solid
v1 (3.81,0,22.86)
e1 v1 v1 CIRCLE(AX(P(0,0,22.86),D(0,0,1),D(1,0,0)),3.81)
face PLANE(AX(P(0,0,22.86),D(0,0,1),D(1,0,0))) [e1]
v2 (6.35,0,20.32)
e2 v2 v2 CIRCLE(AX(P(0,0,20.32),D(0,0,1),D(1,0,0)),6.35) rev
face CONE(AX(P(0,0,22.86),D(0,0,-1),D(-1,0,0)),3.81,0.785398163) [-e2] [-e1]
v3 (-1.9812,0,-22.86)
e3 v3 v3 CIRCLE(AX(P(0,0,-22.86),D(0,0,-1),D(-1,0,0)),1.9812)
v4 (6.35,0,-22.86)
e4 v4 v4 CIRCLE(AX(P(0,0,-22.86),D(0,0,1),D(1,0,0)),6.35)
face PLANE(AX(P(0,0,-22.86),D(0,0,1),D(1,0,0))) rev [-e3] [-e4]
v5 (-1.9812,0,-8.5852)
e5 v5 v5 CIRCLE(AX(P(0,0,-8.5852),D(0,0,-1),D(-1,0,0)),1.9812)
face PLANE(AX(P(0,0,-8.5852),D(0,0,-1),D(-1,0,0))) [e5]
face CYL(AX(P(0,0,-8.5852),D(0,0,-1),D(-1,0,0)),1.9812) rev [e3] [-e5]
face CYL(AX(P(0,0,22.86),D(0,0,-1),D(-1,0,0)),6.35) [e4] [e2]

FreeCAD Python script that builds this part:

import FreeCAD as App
import Part
import Sketcher
Q = App.Units.Quantity


def edges_at(feature, points):
    """Names of the edges that pass closest to the given points."""
    edges = feature.Shape.Edges
    near = lambda p: min(range(len(edges)), key=lambda i: edges[i].distToShape(Part.Vertex(*p))[0])
    return sorted({f"Edge{near(p) + 1}" for p in points})

doc = App.newDocument("Part")
params = doc.addObject("Spreadsheet::Sheet", "Params")
for row, (alias, value) in enumerate([
    ("sketch1_diameter", "0.5 in"),
    ("pad1_length", "1.8 in"),
    ("chamfer_size", "0.1 in"),
    ("sketch2_diameter", "0.156 in"),
    ("pocket1_length", "0.562 in"),
], start=1):
    params.set(f"A{row}", alias)
    params.set(f"B{row}", "=" + value)
    params.setAlias(f"B{row}", alias)

body = doc.addObject("PartDesign::Body", "Body")

sketch1 = body.newObject("Sketcher::SketchObject", "Sketch")
sketch1.AttachmentSupport = (doc.getObject("XY_Plane"), [""])
sketch1.MapMode = "FlatFace"
sketch1.addGeometry(Part.Circle(App.Vector(0, 0, 0), App.Vector(0, 0, 1), 6), False)
sketch1.addConstraint([
    Sketcher.Constraint("Coincident", 0, 3, -1, 1),
    Sketcher.Constraint("Diameter", 0, Q("0.5 in")),
])
sketch1.setExpression("Constraints[1]", "Params.sketch1_diameter")
pad1 = body.newObject("PartDesign::Pad", "Pad")
pad1.Profile = sketch1
pad1.setExpression("Length", "Params.pad1_length")
pad1.Midplane = True
doc.recompute()

chamfer = body.newObject("PartDesign::Chamfer", "Chamfer")
chamfer.Base = (pad1, edges_at(pad1, [(-6.35, 0, 22.86)]))
chamfer.setExpression("Size", "Params.chamfer_size")

sketch2 = body.newObject("Sketcher::SketchObject", "Sketch001")
sketch2.AttachmentSupport = (doc.getObject("XY_Plane"), [""])
sketch2.MapMode = "FlatFace"
sketch2.AttachmentOffset = App.Placement(App.Vector(0, 0, -0.9 * 25.4), App.Rotation())
sketch2.addGeometry(Part.Circle(App.Vector(0, 0, 0), App.Vector(0, 0, 1), 2), False)
sketch2.addConstraint([
    Sketcher.Constraint("Coincident", 0, 3, -1, 1),
    Sketcher.Constraint("Diameter", 0, Q("0.156 in")),
])
sketch2.setExpression("Constraints[1]", "Params.sketch2_diameter")
pocket1 = body.newObject("PartDesign::Pocket", "Pocket")
pocket1.Profile = sketch2
pocket1.setExpression("Length", "Params.pocket1_length")
pocket1.Reversed = True

doc.recompute()
